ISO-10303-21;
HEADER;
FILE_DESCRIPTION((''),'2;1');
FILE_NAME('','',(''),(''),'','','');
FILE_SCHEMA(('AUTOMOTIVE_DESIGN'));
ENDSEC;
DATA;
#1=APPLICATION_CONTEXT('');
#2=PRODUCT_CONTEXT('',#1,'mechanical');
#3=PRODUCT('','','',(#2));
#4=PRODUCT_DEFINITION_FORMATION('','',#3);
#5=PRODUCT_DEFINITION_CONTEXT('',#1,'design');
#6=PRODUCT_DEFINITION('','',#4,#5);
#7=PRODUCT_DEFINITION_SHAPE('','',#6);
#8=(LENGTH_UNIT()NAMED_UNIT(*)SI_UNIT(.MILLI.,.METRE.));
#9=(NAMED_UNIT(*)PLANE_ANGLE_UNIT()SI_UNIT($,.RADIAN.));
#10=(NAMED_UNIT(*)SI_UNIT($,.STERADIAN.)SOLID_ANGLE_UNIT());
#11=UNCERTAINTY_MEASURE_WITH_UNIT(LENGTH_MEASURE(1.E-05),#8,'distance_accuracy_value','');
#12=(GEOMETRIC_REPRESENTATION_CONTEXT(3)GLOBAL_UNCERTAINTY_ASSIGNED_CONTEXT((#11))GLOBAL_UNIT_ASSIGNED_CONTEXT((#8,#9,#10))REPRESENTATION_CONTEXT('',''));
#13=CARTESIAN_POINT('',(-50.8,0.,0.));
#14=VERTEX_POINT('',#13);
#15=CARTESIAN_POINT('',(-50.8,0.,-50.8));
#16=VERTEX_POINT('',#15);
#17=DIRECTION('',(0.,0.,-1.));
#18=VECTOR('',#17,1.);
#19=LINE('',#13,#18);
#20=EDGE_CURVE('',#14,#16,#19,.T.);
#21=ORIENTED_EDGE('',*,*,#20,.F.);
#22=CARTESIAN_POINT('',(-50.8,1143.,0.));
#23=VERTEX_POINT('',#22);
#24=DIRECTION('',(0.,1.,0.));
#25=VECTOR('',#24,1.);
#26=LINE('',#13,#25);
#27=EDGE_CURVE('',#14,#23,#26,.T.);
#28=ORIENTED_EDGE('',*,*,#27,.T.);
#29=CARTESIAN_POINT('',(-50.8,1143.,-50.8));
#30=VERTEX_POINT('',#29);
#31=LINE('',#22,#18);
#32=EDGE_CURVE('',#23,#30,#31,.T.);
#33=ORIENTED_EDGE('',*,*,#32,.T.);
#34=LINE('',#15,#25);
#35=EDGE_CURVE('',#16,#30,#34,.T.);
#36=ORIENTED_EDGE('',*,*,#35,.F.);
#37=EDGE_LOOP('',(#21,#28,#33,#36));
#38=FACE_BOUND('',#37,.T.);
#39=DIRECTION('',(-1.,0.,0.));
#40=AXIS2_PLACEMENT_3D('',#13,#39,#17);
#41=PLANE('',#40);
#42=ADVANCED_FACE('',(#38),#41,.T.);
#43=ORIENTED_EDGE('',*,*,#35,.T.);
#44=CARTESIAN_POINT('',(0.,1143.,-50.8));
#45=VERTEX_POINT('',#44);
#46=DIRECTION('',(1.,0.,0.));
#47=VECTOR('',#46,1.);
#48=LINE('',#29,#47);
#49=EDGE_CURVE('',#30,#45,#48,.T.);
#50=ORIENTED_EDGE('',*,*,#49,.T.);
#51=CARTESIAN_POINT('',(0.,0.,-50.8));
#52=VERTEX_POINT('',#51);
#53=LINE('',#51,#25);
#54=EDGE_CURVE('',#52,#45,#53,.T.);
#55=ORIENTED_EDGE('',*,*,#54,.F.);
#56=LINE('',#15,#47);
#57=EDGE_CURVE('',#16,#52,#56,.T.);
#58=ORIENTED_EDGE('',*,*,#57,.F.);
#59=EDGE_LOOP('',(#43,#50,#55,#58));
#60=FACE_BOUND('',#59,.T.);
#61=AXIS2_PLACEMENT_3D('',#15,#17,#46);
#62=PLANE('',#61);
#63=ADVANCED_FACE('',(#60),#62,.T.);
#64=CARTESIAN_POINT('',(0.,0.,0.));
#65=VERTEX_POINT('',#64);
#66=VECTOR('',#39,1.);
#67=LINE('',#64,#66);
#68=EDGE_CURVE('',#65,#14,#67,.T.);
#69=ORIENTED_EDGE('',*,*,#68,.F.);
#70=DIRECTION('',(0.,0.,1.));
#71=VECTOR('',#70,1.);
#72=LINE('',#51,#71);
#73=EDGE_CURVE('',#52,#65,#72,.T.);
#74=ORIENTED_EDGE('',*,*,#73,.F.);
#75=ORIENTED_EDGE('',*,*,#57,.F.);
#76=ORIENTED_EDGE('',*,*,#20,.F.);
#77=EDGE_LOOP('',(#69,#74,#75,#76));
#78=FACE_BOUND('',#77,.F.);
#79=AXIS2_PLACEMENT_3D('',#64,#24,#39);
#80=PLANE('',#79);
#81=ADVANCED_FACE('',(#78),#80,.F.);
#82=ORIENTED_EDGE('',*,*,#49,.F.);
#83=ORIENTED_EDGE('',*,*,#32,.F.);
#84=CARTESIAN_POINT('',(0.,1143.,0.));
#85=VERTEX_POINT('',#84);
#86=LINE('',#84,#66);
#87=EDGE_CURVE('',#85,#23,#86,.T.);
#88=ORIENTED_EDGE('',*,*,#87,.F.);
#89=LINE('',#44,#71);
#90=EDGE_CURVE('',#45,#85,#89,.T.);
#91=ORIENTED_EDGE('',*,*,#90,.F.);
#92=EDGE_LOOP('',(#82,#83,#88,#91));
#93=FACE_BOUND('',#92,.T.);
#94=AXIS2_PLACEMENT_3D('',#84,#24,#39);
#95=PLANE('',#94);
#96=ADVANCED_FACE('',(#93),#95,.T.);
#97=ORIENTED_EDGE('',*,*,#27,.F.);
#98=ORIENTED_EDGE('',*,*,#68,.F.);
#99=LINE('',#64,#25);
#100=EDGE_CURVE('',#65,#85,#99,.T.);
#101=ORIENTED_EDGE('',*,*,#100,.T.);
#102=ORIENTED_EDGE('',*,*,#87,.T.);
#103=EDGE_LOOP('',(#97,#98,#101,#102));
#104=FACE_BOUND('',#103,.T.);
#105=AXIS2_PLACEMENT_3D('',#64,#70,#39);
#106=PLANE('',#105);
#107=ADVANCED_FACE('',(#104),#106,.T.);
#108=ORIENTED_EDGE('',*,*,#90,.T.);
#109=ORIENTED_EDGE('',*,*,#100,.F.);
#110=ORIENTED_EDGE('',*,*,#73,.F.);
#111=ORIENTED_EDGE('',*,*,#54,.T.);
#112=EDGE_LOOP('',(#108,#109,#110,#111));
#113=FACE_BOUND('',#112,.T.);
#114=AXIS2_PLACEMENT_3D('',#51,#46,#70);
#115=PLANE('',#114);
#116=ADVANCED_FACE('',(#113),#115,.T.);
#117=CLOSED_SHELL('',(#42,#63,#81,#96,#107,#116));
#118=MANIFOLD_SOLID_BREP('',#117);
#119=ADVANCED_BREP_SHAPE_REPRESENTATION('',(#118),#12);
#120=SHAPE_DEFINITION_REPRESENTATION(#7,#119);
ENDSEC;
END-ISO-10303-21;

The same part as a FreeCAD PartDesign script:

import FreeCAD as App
import Part
import Sketcher
Q = App.Units.Quantity

doc = App.newDocument("Part")
params = doc.addObject("Spreadsheet::Sheet", "Params")
for row, (alias, value) in enumerate([
    ("sketch1_width", "2 in"),
    ("pad1_length", "45 in"),
], start=1):
    params.set(f"A{row}", alias)
    params.set(f"B{row}", "=" + value)
    params.setAlias(f"B{row}", alias)

body = doc.addObject("PartDesign::Body", "Body")

sketch1 = body.newObject("Sketcher::SketchObject", "Sketch")
sketch1.AttachmentSupport = (doc.getObject("XZ_Plane"), [""])
sketch1.MapMode = "FlatFace"
sketch1.addGeometry(Part.LineSegment(App.Vector(-51, 0, 0), App.Vector(0, 0, 0)), False)
sketch1.addGeometry(Part.LineSegment(App.Vector(0, 0, 0), App.Vector(0, -51, 0)), False)
sketch1.addGeometry(Part.LineSegment(App.Vector(0, -51, 0), App.Vector(-51, -51, 0)), False)
sketch1.addGeometry(Part.LineSegment(App.Vector(-51, -51, 0), App.Vector(-51, 0, 0)), False)
sketch1.addConstraint(Sketcher.Constraint("Coincident", 0, 2, 1, 1))
sketch1.addConstraint(Sketcher.Constraint("Coincident", 1, 2, 2, 1))
sketch1.addConstraint(Sketcher.Constraint("Coincident", 2, 2, 3, 1))
sketch1.addConstraint(Sketcher.Constraint("Coincident", 3, 2, 0, 1))
sketch1.addConstraint(Sketcher.Constraint("Horizontal", 0))
sketch1.addConstraint(Sketcher.Constraint("Vertical", 1))
sketch1.addConstraint(Sketcher.Constraint("Horizontal", 2))
sketch1.addConstraint(Sketcher.Constraint("Vertical", 3))
sketch1.addConstraint(Sketcher.Constraint("Coincident", 0, 2, -1, 1))
sketch1.addConstraint(Sketcher.Constraint("Equal", 2, 1))
sketch1.addConstraint(Sketcher.Constraint("DistanceX", 0, 1, 0, 2, Q("2 in")))
sketch1.setExpression("Constraints[10]", "Params.sketch1_width")
pad1 = body.newObject("PartDesign::Pad", "Pad")
pad1.Profile = sketch1
pad1.setExpression("Length", "Params.pad1_length")
pad1.Reversed = True

doc.recompute()
